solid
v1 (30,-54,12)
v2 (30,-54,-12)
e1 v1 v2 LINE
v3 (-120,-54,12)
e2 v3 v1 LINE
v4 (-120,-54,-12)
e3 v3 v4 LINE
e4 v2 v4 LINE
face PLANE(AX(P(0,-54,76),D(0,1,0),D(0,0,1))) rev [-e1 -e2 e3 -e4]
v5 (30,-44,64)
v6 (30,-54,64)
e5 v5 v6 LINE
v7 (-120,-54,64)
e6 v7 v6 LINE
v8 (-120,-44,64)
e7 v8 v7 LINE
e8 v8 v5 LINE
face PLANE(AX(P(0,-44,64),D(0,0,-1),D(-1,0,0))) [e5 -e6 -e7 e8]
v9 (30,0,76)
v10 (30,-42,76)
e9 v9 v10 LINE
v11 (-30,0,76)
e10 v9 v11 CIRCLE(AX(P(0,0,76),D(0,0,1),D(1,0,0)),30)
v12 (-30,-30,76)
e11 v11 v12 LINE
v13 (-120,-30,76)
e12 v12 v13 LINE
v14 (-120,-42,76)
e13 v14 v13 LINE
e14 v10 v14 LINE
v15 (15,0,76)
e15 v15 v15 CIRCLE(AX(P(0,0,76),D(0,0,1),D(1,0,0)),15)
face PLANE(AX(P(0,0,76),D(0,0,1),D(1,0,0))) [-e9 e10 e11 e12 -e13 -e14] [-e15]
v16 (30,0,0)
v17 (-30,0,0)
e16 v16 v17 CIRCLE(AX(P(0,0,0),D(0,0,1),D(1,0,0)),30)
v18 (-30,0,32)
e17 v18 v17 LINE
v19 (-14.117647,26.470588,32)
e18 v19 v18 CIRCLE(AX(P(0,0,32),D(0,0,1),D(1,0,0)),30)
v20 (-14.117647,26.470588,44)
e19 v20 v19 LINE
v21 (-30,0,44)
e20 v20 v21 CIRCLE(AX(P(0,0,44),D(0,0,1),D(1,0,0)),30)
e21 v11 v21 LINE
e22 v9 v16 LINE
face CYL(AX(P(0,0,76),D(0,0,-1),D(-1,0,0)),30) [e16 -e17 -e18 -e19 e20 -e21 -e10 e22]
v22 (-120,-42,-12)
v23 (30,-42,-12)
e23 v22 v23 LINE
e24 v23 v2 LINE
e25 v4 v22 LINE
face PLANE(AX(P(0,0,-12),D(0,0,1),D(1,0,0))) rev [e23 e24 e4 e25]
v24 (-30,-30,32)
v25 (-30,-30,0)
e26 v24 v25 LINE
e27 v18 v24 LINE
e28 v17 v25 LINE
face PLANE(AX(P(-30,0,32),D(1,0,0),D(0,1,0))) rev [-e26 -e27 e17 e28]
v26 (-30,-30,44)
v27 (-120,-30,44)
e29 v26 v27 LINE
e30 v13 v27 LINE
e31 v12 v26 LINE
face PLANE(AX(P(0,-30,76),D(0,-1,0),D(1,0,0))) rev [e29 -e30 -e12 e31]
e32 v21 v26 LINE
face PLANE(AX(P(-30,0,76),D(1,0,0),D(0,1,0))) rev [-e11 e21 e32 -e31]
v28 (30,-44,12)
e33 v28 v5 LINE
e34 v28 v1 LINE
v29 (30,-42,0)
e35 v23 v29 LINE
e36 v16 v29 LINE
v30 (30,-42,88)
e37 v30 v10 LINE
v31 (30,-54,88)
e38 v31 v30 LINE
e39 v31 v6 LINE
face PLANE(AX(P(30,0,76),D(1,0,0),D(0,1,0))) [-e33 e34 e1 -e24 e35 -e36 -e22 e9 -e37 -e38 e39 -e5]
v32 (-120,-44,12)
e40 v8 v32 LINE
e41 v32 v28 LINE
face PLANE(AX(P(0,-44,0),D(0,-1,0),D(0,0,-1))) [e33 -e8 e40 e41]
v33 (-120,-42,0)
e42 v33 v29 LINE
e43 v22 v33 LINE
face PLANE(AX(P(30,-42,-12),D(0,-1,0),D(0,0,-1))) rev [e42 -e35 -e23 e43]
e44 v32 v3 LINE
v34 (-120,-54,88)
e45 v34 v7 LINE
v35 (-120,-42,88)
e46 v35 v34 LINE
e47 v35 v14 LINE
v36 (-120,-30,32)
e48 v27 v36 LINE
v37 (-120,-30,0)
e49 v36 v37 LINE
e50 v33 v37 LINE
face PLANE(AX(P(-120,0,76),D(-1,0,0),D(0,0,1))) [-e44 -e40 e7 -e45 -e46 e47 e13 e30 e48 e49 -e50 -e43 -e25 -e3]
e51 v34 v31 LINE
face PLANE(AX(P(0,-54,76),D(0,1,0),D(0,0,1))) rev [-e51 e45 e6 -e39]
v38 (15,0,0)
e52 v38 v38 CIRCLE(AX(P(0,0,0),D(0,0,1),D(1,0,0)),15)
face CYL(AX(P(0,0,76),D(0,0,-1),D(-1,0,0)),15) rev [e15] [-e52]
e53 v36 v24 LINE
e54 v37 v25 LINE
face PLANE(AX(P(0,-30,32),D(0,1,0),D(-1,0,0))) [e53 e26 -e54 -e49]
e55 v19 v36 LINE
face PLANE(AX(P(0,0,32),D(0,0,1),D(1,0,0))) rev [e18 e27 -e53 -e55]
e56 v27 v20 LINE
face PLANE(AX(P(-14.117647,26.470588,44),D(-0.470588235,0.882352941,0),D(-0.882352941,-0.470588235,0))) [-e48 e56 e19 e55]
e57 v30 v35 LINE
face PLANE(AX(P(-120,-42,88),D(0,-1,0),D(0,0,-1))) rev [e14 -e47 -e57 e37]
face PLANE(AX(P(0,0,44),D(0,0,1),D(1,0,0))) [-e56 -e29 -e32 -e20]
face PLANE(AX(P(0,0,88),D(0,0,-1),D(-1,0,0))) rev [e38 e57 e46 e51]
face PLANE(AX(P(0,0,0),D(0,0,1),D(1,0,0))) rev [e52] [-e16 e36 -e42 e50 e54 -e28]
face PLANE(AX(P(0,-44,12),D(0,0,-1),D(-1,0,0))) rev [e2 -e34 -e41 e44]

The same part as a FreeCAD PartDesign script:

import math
import FreeCAD as App
import Part
import Sketcher

doc = App.newDocument("Part")
params = doc.addObject("Spreadsheet::Sheet", "Params")
for row, (alias, value) in enumerate([
    ("sketch1_diameter", "30 mm"),
    ("sketch1_radius", "30 mm"),
    ("sketch1_width", "150 mm"),
    ("sketch1_height", "24 mm"),
    ("sketch1_height2", "54 mm"),
    ("pad1_length", "76 mm"),
    ("sketch2_width", "150 mm"),
    ("sketch2_height", "12 mm"),
    ("pad2_length", "12 mm"),
    ("sketch3_width", "150 mm"),
    ("sketch3_height", "12 mm"),
    ("pad3_length", "12 mm"),
    ("sketch4_width", "150 mm"),
    ("sketch4_height", "52 mm"),
    ("pocket1_length", "10 mm"),
    ("sketch5_radius", "30 mm"),
    ("sketch5_width", "90 mm"),
    ("sketch5_height", "30 mm"),
    ("pad4_length", "44 mm"),
    ("sketch6_radius", "30 mm"),
    ("sketch6_width", "90 mm"),
    ("sketch6_height", "30 mm"),
    ("pocket2_length", "32 mm"),
], start=1):
    params.set(f"A{row}", alias)
    params.set(f"B{row}", "=" + value)
    params.setAlias(f"B{row}", alias)

body = doc.addObject("PartDesign::Body", "Body")

sketch1 = doc.addObject("Sketcher::SketchObject", "Sketch")
body.addObject(sketch1)
sketch1.AttachmentSupport = (doc.XY_Plane, [""])
sketch1.MapMode = "FlatFace"
sketch1.addGeometry(Part.LineSegment(App.Vector(-120, -30, 0), App.Vector(-120, -54, 0)), False)
sketch1.addGeometry(Part.LineSegment(App.Vector(-120, -54, 0), App.Vector(30, -54, 0)), False)
sketch1.addGeometry(Part.LineSegment(App.Vector(30, -54, 0), App.Vector(30, 0, 0)), False)
sketch1.addGeometry(Part.ArcOfCircle(Part.Circle(App.Vector(0, 0, 0), App.Vector(0, 0, 1), 30), math.radians(0), math.radians(180)), False)
sketch1.addGeometry(Part.LineSegment(App.Vector(-30, 0, 0), App.Vector(-30, -30, 0)), False)
sketch1.addGeometry(Part.LineSegment(App.Vector(-30, -30, 0), App.Vector(-120, -30, 0)), False)
sketch1.addGeometry(Part.Circle(App.Vector(0, 0, 0), App.Vector(0, 0, 1), 15), False)
sketch1.addConstraint(Sketcher.Constraint("Coincident", 0, 2, 1, 1))
sketch1.addConstraint(Sketcher.Constraint("Coincident", 1, 2, 2, 1))
sketch1.addConstraint(Sketcher.Constraint("Tangent", 2, 2, 3, 1))
sketch1.addConstraint(Sketcher.Constraint("Tangent", 3, 2, 4, 1))
sketch1.addConstraint(Sketcher.Constraint("Coincident", 4, 2, 5, 1))
sketch1.addConstraint(Sketcher.Constraint("Coincident", 5, 2, 0, 1))
sketch1.addConstraint(Sketcher.Constraint("Vertical", 0))
sketch1.addConstraint(Sketcher.Constraint("Horizontal", 1))
sketch1.addConstraint(Sketcher.Constraint("Vertical", 2))
sketch1.addConstraint(Sketcher.Constraint("Vertical", 4))
sketch1.addConstraint(Sketcher.Constraint("Horizontal", 5))
sketch1.addConstraint(Sketcher.Constraint("Coincident", 3, 3, -1, 1))
sketch1.addConstraint(Sketcher.Constraint("Coincident", 6, 3, -1, 1))
sketch1.addConstraint(Sketcher.Constraint("Diameter", 6, 30.0))
sketch1.addConstraint(Sketcher.Constraint("Radius", 3, 30.0))
sketch1.addConstraint(Sketcher.Constraint("DistanceX", 1, 1, 1, 2, 150.0))
sketch1.addConstraint(Sketcher.Constraint("DistanceY", 0, 2, 0, 1, 24.0))
sketch1.addConstraint(Sketcher.Constraint("DistanceY", 2, 1, 2, 2, 54.0))
sketch1.setExpression("Constraints[13]", "Params.sketch1_diameter")
sketch1.setExpression("Constraints[14]", "Params.sketch1_radius")
sketch1.setExpression("Constraints[15]", "Params.sketch1_width")
sketch1.setExpression("Constraints[16]", "Params.sketch1_height")
sketch1.setExpression("Constraints[17]", "Params.sketch1_height2")
pad1 = doc.addObject("PartDesign::Pad", "Pad")
body.addObject(pad1)
pad1.Profile = sketch1
pad1.setExpression("Length", "Params.pad1_length")

sketch2 = doc.addObject("Sketcher::SketchObject", "Sketch001")
body.addObject(sketch2)
sketch2.AttachmentSupport = (doc.XY_Plane, [""])
sketch2.MapMode = "FlatFace"
sketch2.AttachmentOffset = App.Placement(App.Vector(0, 0, 76), App.Rotation())
sketch2.addGeometry(Part.LineSegment(App.Vector(-120, -42, 0), App.Vector(-120, -54, 0)), False)
sketch2.addGeometry(Part.LineSegment(App.Vector(-120, -54, 0), App.Vector(30, -54, 0)), False)
sketch2.addGeometry(Part.LineSegment(App.Vector(30, -54, 0), App.Vector(30, -42, 0)), False)
sketch2.addGeometry(Part.LineSegment(App.Vector(30, -42, 0), App.Vector(-120, -42, 0)), False)
sketch2.addConstraint(Sketcher.Constraint("Coincident", 0, 2, 1, 1))
sketch2.addConstraint(Sketcher.Constraint("Coincident", 1, 2, 2, 1))
sketch2.addConstraint(Sketcher.Constraint("Coincident", 2, 2, 3, 1))
sketch2.addConstraint(Sketcher.Constraint("Coincident", 3, 2, 0, 1))
sketch2.addConstraint(Sketcher.Constraint("Vertical", 0))
sketch2.addConstraint(Sketcher.Constraint("Horizontal", 1))
sketch2.addConstraint(Sketcher.Constraint("Vertical", 2))
sketch2.addConstraint(Sketcher.Constraint("Horizontal", 3))
sketch2.addConstraint(Sketcher.Constraint("DistanceX", 1, 1, 1, 2, 150.0))
sketch2.addConstraint(Sketcher.Constraint("DistanceY", 0, 2, 0, 1, 12.0))
sketch2.addConstraint(Sketcher.Constraint("DistanceX", 0, 2, -1, 1, 120.0))
sketch2.addConstraint(Sketcher.Constraint("DistanceY", 0, 2, -1, 1, 54.0))
sketch2.setExpression("Constraints[8]", "Params.sketch2_width")
sketch2.setExpression("Constraints[9]", "Params.sketch2_height")
pad2 = doc.addObject("PartDesign::Pad", "Pad001")
body.addObject(pad2)
pad2.Profile = sketch2
pad2.setExpression("Length", "Params.pad2_length")

sketch3 = doc.addObject("Sketcher::SketchObject", "Sketch002")
body.addObject(sketch3)
sketch3.AttachmentSupport = (doc.XY_Plane, [""])
sketch3.MapMode = "FlatFace"
sketch3.addGeometry(Part.LineSegment(App.Vector(30, -42, 0), App.Vector(30, -54, 0)), False)
sketch3.addGeometry(Part.LineSegment(App.Vector(30, -54, 0), App.Vector(-120, -54, 0)), False)
sketch3.addGeometry(Part.LineSegment(App.Vector(-120, -54, 0), App.Vector(-120, -42, 0)), False)
sketch3.addGeometry(Part.LineSegment(App.Vector(-120, -42, 0), App.Vector(30, -42, 0)), False)
sketch3.addConstraint(Sketcher.Constraint("Coincident", 0, 2, 1, 1))
sketch3.addConstraint(Sketcher.Constraint("Coincident", 1, 2, 2, 1))
sketch3.addConstraint(Sketcher.Constraint("Coincident", 2, 2, 3, 1))
sketch3.addConstraint(Sketcher.Constraint("Coincident", 3, 2, 0, 1))
sketch3.addConstraint(Sketcher.Constraint("Vertical", 0))
sketch3.addConstraint(Sketcher.Constraint("Horizontal", 1))
sketch3.addConstraint(Sketcher.Constraint("Vertical", 2))
sketch3.addConstraint(Sketcher.Constraint("Horizontal", 3))
sketch3.addConstraint(Sketcher.Constraint("DistanceX", 1, 2, 1, 1, 150.0))
sketch3.addConstraint(Sketcher.Constraint("DistanceY", 0, 2, 0, 1, 12.0))
sketch3.addConstraint(Sketcher.Constraint("DistanceX", -1, 1, 0, 2, 30.0))
sketch3.addConstraint(Sketcher.Constraint("DistanceY", 0, 2, -1, 1, 54.0))
sketch3.setExpression("Constraints[8]", "Params.sketch3_width")
sketch3.setExpression("Constraints[9]", "Params.sketch3_height")
pad3 = doc.addObject("PartDesign::Pad", "Pad002")
body.addObject(pad3)
pad3.Profile = sketch3
pad3.setExpression("Length", "Params.pad3_length")
pad3.Reversed = True

sketch4 = doc.addObject("Sketcher::SketchObject", "Sketch003")
body.addObject(sketch4)
sketch4.AttachmentSupport = (doc.XZ_Plane, [""])
sketch4.MapMode = "FlatFace"
sketch4.AttachmentOffset = App.Placement(App.Vector(0, 0, 54), App.Rotation())
sketch4.addGeometry(Part.LineSegment(App.Vector(30, 12, 0), App.Vector(30, 64, 0)), False)
sketch4.addGeometry(Part.LineSegment(App.Vector(30, 64, 0), App.Vector(-120, 64, 0)), False)
sketch4.addGeometry(Part.LineSegment(App.Vector(-120, 64, 0), App.Vector(-120, 12, 0)), False)
sketch4.addGeometry(Part.LineSegment(App.Vector(-120, 12, 0), App.Vector(30, 12, 0)), False)
sketch4.addConstraint(Sketcher.Constraint("Coincident", 0, 2, 1, 1))
sketch4.addConstraint(Sketcher.Constraint("Coincident", 1, 2, 2, 1))
sketch4.addConstraint(Sketcher.Constraint("Coincident", 2, 2, 3, 1))
sketch4.addConstraint(Sketcher.Constraint("Coincident", 3, 2, 0, 1))
sketch4.addConstraint(Sketcher.Constraint("Vertical", 0))
sketch4.addConstraint(Sketcher.Constraint("Horizontal", 1))
sketch4.addConstraint(Sketcher.Constraint("Vertical", 2))
sketch4.addConstraint(Sketcher.Constraint("Horizontal", 3))
sketch4.addConstraint(Sketcher.Constraint("DistanceX", 1, 2, 1, 1, 150.0))
sketch4.addConstraint(Sketcher.Constraint("DistanceY", 0, 1, 0, 2, 52.0))
sketch4.addConstraint(Sketcher.Constraint("DistanceX", -1, 1, 0, 2, 30.0))
sketch4.addConstraint(Sketcher.Constraint("DistanceY", -1, 1, 0, 2, 64.0))
sketch4.setExpression("Constraints[8]", "Params.sketch4_width")
sketch4.setExpression("Constraints[9]", "Params.sketch4_height")
pocket1 = doc.addObject("PartDesign::Pocket", "Pocket")
body.addObject(pocket1)
pocket1.Profile = sketch4
pocket1.setExpression("Length", "Params.pocket1_length")

sketch5 = doc.addObject("Sketcher::SketchObject", "Sketch004")
body.addObject(sketch5)
sketch5.AttachmentSupport = (doc.XY_Plane, [""])
sketch5.MapMode = "FlatFace"
sketch5.addGeometry(Part.LineSegment(App.Vector(-14, 26, 0), App.Vector(-120, -30, 0)), False)
sketch5.addGeometry(Part.LineSegment(App.Vector(-120, -30, 0), App.Vector(-30, -30, 0)), False)
sketch5.addGeometry(Part.LineSegment(App.Vector(-30, -30, 0), App.Vector(-30, 0, 0)), False)
sketch5.addGeometry(Part.ArcOfCircle(Part.Circle(App.Vector(0, 0, 0), App.Vector(0, 0, 1), 30), math.radians(118), math.radians(180)), False)
sketch5.addConstraint(Sketcher.Constraint("Coincident", 0, 2, 1, 1))
sketch5.addConstraint(Sketcher.Constraint("Coincident", 1, 2, 2, 1))
sketch5.addConstraint(Sketcher.Constraint("Tangent", 2, 2, 3, 2))
sketch5.addConstraint(Sketcher.Constraint("Tangent", 3, 1, 0, 1))
sketch5.addConstraint(Sketcher.Constraint("Horizontal", 1))
sketch5.addConstraint(Sketcher.Constraint("Vertical", 2))
sketch5.addConstraint(Sketcher.Constraint("Coincident", 3, 3, -1, 1))
sketch5.addConstraint(Sketcher.Constraint("Radius", 3, 30.0))
sketch5.addConstraint(Sketcher.Constraint("DistanceX", 1, 1, 1, 2, 90.0))
sketch5.addConstraint(Sketcher.Constraint("DistanceY", 2, 1, 2, 2, 30.0))
sketch5.setExpression("Constraints[7]", "Params.sketch5_radius")
sketch5.setExpression("Constraints[8]", "Params.sketch5_width")
sketch5.setExpression("Constraints[9]", "Params.sketch5_height")
pad4 = doc.addObject("PartDesign::Pad", "Pad003")
body.addObject(pad4)
pad4.Profile = sketch5
pad4.setExpression("Length", "Params.pad4_length")

sketch6 = doc.addObject("Sketcher::SketchObject", "Sketch005")
body.addObject(sketch6)
sketch6.AttachmentSupport = (doc.XY_Plane, [""])
sketch6.MapMode = "FlatFace"
sketch6.addGeometry(Part.LineSegment(App.Vector(-30, -30, 0), App.Vector(-30, 0, 0)), False)
sketch6.addGeometry(Part.ArcOfCircle(Part.Circle(App.Vector(0, 0, 0), App.Vector(0, 0, 1), 30), math.radians(118), math.radians(180)), False)
sketch6.addGeometry(Part.LineSegment(App.Vector(-14, 26, 0), App.Vector(-120, -30, 0)), False)
sketch6.addGeometry(Part.LineSegment(App.Vector(-120, -30, 0), App.Vector(-30, -30, 0)), False)
sketch6.addConstraint(Sketcher.Constraint("Tangent", 0, 2, 1, 2))
sketch6.addConstraint(Sketcher.Constraint("Tangent", 1, 1, 2, 1))
sketch6.addConstraint(Sketcher.Constraint("Coincident", 2, 2, 3, 1))
sketch6.addConstraint(Sketcher.Constraint("Coincident", 3, 2, 0, 1))
sketch6.addConstraint(Sketcher.Constraint("Vertical", 0))
sketch6.addConstraint(Sketcher.Constraint("Horizontal", 3))
sketch6.addConstraint(Sketcher.Constraint("Coincident", 1, 3, -1, 1))
sketch6.addConstraint(Sketcher.Constraint("Radius", 1, 30.0))
sketch6.addConstraint(Sketcher.Constraint("DistanceX", 3, 1, 3, 2, 90.0))
sketch6.addConstraint(Sketcher.Constraint("DistanceY", 0, 1, 0, 2, 30.0))
sketch6.setExpression("Constraints[7]", "Params.sketch6_radius")
sketch6.setExpression("Constraints[8]", "Params.sketch6_width")
sketch6.setExpression("Constraints[9]", "Params.sketch6_height")
pocket2 = doc.addObject("PartDesign::Pocket", "Pocket001")
body.addObject(pocket2)
pocket2.Profile = sketch6
pocket2.setExpression("Length", "Params.pocket2_length")
pocket2.Reversed = True

doc.recompute()
